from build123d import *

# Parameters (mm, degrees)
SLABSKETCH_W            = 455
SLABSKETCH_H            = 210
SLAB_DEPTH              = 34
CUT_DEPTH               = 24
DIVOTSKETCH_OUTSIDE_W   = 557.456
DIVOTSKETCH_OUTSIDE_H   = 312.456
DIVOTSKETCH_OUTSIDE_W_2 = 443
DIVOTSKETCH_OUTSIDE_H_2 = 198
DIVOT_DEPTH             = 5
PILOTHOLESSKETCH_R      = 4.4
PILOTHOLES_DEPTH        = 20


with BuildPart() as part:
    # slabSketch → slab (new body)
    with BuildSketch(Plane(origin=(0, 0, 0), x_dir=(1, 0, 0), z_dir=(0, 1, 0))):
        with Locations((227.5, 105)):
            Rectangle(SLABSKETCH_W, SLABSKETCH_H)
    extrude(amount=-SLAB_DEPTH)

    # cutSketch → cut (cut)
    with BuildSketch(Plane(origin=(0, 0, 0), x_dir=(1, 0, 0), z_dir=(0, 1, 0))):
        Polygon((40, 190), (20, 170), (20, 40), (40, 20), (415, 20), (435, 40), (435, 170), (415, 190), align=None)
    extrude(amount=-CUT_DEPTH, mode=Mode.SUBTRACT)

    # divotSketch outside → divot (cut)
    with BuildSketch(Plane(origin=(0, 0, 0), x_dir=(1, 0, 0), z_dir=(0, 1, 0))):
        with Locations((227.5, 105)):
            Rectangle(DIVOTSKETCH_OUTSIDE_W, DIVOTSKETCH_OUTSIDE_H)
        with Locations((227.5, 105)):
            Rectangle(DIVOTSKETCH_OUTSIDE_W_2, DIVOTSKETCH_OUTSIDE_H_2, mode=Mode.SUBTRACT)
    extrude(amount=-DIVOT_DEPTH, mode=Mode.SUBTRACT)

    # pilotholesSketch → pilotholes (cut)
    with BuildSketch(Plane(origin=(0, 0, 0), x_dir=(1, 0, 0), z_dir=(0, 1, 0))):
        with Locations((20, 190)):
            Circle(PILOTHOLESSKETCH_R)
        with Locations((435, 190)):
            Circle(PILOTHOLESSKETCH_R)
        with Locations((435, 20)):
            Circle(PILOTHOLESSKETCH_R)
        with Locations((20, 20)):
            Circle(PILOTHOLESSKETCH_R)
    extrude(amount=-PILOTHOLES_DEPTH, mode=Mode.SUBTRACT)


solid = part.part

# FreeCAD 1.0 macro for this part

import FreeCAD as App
import Part
import Sketcher
Q = App.Units.Quantity


def add_polygon(sketch, points):
    """Adds a closed chain of lines whose ends are joined by coincident constraints."""
    first, n = sketch.GeometryCount, len(points)
    for a, b in zip(points, points[1:] + points[:1]):
        sketch.addGeometry(Part.LineSegment(App.Vector(*a, 0), App.Vector(*b, 0)), False)
    for i in range(n):
        sketch.addConstraint(Sketcher.Constraint("Coincident", first + i, 2, first + (i + 1) % n, 1))

doc = App.newDocument("Part")
body = doc.addObject("PartDesign::Body", "Body")

# Sketch on XZ plane
sketch1 = body.newObject("Sketcher::SketchObject", "Sketch")
sketch1.AttachmentSupport = (doc.getObject("XZ_Plane"), [""])
sketch1.MapMode = "FlatFace"
add_polygon(sketch1, [(0, -210), (0, 0), (455, 0), (455, -210)])  # lines 0-3
sketch1.addConstraint(Sketcher.Constraint("Vertical", 0))
sketch1.addConstraint(Sketcher.Constraint("Horizontal", 1))
sketch1.addConstraint(Sketcher.Constraint("Vertical", 2))
sketch1.addConstraint(Sketcher.Constraint("Horizontal", 3))
sketch1.addConstraint(Sketcher.Constraint("Coincident", 0, 2, -1, 1))
sketch1.addConstraint(Sketcher.Constraint("DistanceX", 1, 1, 1, 2, Q("455 mm")))
sketch1.addConstraint(Sketcher.Constraint("DistanceY", 0, 1, 0, 2, Q("210 mm")))
pad1 = body.newObject("PartDesign::Pad", "Pad")
pad1.Profile = sketch1
pad1.Length = 34

# Sketch on XZ plane
sketch2 = body.newObject("Sketcher::SketchObject", "Sketch001")
sketch2.AttachmentSupport = (doc.getObject("XZ_Plane"), [""])
sketch2.MapMode = "FlatFace"
add_polygon(sketch2, [(40, -190), (20, -170), (20, -40), (40, -20), (415, -20), (435, -40), (435, -170), (415, -190)])  # lines 0-7
sketch2.addConstraint(Sketcher.Constraint("Vertical", 1))
sketch2.addConstraint(Sketcher.Constraint("Horizontal", 3))
sketch2.addConstraint(Sketcher.Constraint("Vertical", 5))
sketch2.addConstraint(Sketcher.Constraint("Horizontal", 7))
sketch2.addConstraint(Sketcher.Constraint("Perpendicular", 0, 2))
sketch2.addConstraint(Sketcher.Constraint("Perpendicular", 2, 4))
sketch2.addConstraint(Sketcher.Constraint("Perpendicular", 4, 6))
sketch2.addConstraint(Sketcher.Constraint("Horizontal", 1, 2, 4, 2))
sketch2.addConstraint(Sketcher.Constraint("Horizontal", 0, 2, 5, 2))
sketch2.addConstraint(Sketcher.Constraint("Vertical", 3, 2, 6, 2))
sketch2.addConstraint(Sketcher.Constraint("Vertical", 2, 2, 7, 2))
sketch2.addConstraint(Sketcher.Constraint("DistanceX", 3, 1, 3, 2, Q("375 mm")))
sketch2.addConstraint(Sketcher.Constraint("DistanceY", 1, 1, 1, 2, Q("130 mm")))
sketch2.addConstraint(Sketcher.Constraint("DistanceX", -1, 1, 0, 2, Q("20 mm")))
sketch2.addConstraint(Sketcher.Constraint("DistanceY", 0, 2, -1, 1, Q("170 mm")))
sketch2.addConstraint(Sketcher.Constraint("DistanceX", -1, 1, 2, 2, Q("40 mm")))
pocket1 = body.newObject("PartDesign::Pocket", "Pocket")
pocket1.Profile = sketch2
pocket1.Length = 24
pocket1.Reversed = True

# Sketch on XZ plane
sketch3 = body.newObject("Sketcher::SketchObject", "Sketch002")
sketch3.AttachmentSupport = (doc.getObject("XZ_Plane"), [""])
sketch3.MapMode = "FlatFace"
add_polygon(sketch3, [(-51.228, -261.228), (-51.228, 51.228), (506.228, 51.228), (506.228, -261.228)])  # lines 0-3
add_polygon(sketch3, [(449, -6), (6, -6), (6, -204), (449, -204)])  # lines 4-7
sketch3.addConstraint(Sketcher.Constraint("Vertical", 0))
sketch3.addConstraint(Sketcher.Constraint("Horizontal", 1))
sketch3.addConstraint(Sketcher.Constraint("Vertical", 2))
sketch3.addConstraint(Sketcher.Constraint("Horizontal", 3))
sketch3.addConstraint(Sketcher.Constraint("Horizontal", 4))
sketch3.addConstraint(Sketcher.Constraint("Vertical", 5))
sketch3.addConstraint(Sketcher.Constraint("Horizontal", 6))
sketch3.addConstraint(Sketcher.Constraint("Vertical", 7))
sketch3.addConstraint(Sketcher.Constraint("DistanceX", 4, 2, 4, 1, Q("443 mm")))
sketch3.addConstraint(Sketcher.Constraint("DistanceY", 5, 2, 5, 1, Q("198 mm")))
sketch3.addConstraint(Sketcher.Constraint("DistanceX", -1, 1, 4, 2, Q("6 mm")))
sketch3.addConstraint(Sketcher.Constraint("DistanceY", 4, 2, -1, 1, Q("6 mm")))
sketch3.addConstraint(Sketcher.Constraint("DistanceX", 1, 1, 1, 2, Q("557.456 mm")))
sketch3.addConstraint(Sketcher.Constraint("DistanceY", 0, 1, 0, 2, Q("312.456 mm")))
sketch3.addConstraint(Sketcher.Constraint("DistanceX", 0, 2, -1, 1, Q("51.228 mm")))
sketch3.addConstraint(Sketcher.Constraint("DistanceY", -1, 1, 0, 2, Q("51.228 mm")))
pocket2 = body.newObject("PartDesign::Pocket", "Pocket001")
pocket2.Profile = sketch3
pocket2.Length = 5
pocket2.Reversed = True

# Sketch on XZ plane
sketch4 = body.newObject("Sketcher::SketchObject", "Sketch003")
sketch4.AttachmentSupport = (doc.getObject("XZ_Plane"), [""])
sketch4.MapMode = "FlatFace"
sketch4.addGeometry(Part.Circle(App.Vector(20, -190, 0), App.Vector(0, 0, 1), 4.4), False)
sketch4.addGeometry(Part.Circle(App.Vector(435, -190, 0), App.Vector(0, 0, 1), 4.4), False)
sketch4.addGeometry(Part.Circle(App.Vector(435, -20, 0), App.Vector(0, 0, 1), 4.4), False)
sketch4.addGeometry(Part.Circle(App.Vector(20, -20, 0), App.Vector(0, 0, 1), 4.4), False)
sketch4.addConstraint(Sketcher.Constraint("Equal", 0, 1))
sketch4.addConstraint(Sketcher.Constraint("Equal", 1, 2))
sketch4.addConstraint(Sketcher.Constraint("Equal", 2, 3))
sketch4.addConstraint(Sketcher.Constraint("Horizontal", 0, 3, 1, 3))
sketch4.addConstraint(Sketcher.Constraint("Horizontal", 2, 3, 3, 3))
sketch4.addConstraint(Sketcher.Constraint("Vertical", 1, 3, 2, 3))
sketch4.addConstraint(Sketcher.Constraint("Vertical", 0, 3, 3, 3))
sketch4.addConstraint(Sketcher.Constraint("Diameter", 0, Q("8.8 mm")))
sketch4.addConstraint(Sketcher.Constraint("DistanceX", -1, 1, 0, 3, Q("20 mm")))
sketch4.addConstraint(Sketcher.Constraint("DistanceY", 0, 3, -1, 1, Q("190 mm")))
sketch4.addConstraint(Sketcher.Constraint("DistanceX", -1, 1, 1, 3, Q("435 mm")))
sketch4.addConstraint(Sketcher.Constraint("DistanceY", 2, 3, -1, 1, Q("20 mm")))
pocket3 = body.newObject("PartDesign::Pocket", "Pocket002")
pocket3.Profile = sketch4
pocket3.Length = 20
pocket3.Reversed = True

doc.recompute()
